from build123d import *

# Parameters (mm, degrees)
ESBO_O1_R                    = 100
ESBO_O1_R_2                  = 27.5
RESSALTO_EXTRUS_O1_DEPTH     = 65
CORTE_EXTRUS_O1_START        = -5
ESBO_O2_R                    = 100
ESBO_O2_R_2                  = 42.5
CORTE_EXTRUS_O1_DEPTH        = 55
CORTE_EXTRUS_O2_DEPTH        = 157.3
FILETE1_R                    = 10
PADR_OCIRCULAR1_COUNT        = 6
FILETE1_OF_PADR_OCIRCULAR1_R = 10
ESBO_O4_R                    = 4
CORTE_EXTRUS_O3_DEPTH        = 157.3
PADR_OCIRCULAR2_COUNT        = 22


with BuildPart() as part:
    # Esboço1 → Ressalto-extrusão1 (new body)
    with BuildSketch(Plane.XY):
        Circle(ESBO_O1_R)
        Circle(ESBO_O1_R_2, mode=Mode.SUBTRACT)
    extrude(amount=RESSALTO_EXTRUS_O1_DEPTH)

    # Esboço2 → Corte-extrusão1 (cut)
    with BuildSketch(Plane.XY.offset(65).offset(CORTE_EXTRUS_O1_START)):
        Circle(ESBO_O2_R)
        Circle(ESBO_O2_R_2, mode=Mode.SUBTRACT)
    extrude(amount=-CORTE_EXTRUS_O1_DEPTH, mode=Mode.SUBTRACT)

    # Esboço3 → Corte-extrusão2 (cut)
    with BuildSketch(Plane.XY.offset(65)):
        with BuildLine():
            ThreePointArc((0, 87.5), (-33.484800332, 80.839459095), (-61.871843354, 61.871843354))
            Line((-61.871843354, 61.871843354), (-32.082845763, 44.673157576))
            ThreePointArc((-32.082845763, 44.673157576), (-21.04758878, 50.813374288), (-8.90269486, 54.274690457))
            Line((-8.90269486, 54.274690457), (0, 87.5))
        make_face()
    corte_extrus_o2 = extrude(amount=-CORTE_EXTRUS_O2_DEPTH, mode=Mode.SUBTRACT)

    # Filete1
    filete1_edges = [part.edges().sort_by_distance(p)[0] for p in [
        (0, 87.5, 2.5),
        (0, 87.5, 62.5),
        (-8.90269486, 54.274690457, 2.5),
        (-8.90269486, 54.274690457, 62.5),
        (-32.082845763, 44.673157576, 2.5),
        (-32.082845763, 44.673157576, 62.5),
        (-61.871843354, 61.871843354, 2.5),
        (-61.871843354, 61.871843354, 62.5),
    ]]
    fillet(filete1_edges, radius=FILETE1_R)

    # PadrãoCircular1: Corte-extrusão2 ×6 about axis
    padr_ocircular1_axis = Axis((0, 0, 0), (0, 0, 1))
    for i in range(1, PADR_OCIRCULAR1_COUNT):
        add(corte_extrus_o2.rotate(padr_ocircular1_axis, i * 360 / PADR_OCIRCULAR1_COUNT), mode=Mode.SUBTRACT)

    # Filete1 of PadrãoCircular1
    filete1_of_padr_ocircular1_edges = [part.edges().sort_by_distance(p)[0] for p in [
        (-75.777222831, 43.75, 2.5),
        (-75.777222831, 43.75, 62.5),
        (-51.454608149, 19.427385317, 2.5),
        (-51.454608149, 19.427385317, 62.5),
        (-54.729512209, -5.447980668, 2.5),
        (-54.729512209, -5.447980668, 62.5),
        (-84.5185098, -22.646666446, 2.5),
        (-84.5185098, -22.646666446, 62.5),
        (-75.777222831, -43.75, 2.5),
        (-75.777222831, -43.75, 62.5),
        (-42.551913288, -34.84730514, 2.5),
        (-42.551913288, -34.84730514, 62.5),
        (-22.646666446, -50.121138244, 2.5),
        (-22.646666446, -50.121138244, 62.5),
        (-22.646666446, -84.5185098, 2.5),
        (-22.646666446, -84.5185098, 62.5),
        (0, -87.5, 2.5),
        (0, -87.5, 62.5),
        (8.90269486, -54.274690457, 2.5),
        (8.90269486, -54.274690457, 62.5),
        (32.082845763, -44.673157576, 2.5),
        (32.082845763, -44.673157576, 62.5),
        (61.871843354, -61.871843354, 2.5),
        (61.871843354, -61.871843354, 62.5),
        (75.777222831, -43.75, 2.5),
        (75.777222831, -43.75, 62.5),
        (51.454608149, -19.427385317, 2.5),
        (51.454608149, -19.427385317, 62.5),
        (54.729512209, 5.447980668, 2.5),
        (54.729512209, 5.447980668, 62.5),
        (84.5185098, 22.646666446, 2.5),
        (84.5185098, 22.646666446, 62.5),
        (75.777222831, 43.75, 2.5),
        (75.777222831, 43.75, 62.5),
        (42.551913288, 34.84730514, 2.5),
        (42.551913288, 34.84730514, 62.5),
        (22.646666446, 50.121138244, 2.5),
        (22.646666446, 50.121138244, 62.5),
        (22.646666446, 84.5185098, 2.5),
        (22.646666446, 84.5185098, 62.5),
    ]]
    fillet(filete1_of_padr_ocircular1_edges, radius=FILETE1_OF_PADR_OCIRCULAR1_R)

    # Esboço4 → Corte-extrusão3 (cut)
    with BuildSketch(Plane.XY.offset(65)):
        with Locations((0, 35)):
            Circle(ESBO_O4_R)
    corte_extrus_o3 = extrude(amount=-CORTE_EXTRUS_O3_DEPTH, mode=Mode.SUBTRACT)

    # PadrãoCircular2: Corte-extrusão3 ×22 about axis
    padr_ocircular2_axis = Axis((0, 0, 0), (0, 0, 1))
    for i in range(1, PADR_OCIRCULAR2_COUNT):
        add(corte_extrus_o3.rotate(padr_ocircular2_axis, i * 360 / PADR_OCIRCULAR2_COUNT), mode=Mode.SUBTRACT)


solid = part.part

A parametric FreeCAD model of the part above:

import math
import FreeCAD as App
import Part
import Sketcher

V = App.Vector
Q = App.Units.Quantity


def edges_at(feature, points):
    """Names of the edges that pass closest to the given points."""
    edges = feature.Shape.Edges
    near = lambda p: min(range(len(edges)), key=lambda i: edges[i].distToShape(Part.Vertex(*p))[0])
    return sorted({f"Edge{near(p) + 1}" for p in points})

doc = App.newDocument("Part")
body = doc.addObject("PartDesign::Body", "Body")

sketch1 = body.newObject("Sketcher::SketchObject", "Sketch")
sketch1.AttachmentSupport = (doc.getObject("XY_Plane"), [""])
sketch1.MapMode = "FlatFace"
sketch1.addGeometry(Part.Circle(V(0, 0, 0), V(0, 0, 1), 100), False)
sketch1.addGeometry(Part.Circle(V(0, 0, 0), V(0, 0, 1), 28), False)
sketch1.addConstraint(Sketcher.Constraint("Coincident", 0, 3, -1, 1))
sketch1.addConstraint(Sketcher.Constraint("Coincident", 1, 3, -1, 1))
sketch1.addConstraint(Sketcher.Constraint("Diameter", 0, 200.0))
sketch1.addConstraint(Sketcher.Constraint("Diameter", 1, 55.0))
pad1 = body.newObject("PartDesign::Pad", "Pad")
pad1.Profile = sketch1
pad1.Length = 65

sketch2 = body.newObject("Sketcher::SketchObject", "Sketch001")
sketch2.AttachmentSupport = (doc.getObject("XY_Plane"), [""])
sketch2.MapMode = "FlatFace"
sketch2.AttachmentOffset = App.Placement(V(0, 0, 60), App.Rotation())
sketch2.addGeometry(Part.Circle(V(0, 0, 0), V(0, 0, 1), 100), False)
sketch2.addGeometry(Part.Circle(V(0, 0, 0), V(0, 0, 1), 42), False)
sketch2.addConstraint(Sketcher.Constraint("Coincident", 0, 3, -1, 1))
sketch2.addConstraint(Sketcher.Constraint("Coincident", 1, 3, -1, 1))
sketch2.addConstraint(Sketcher.Constraint("Diameter", 0, 200.0))
sketch2.addConstraint(Sketcher.Constraint("Diameter", 1, 85.0))
pocket1 = body.newObject("PartDesign::Pocket", "Pocket")
pocket1.Profile = sketch2
pocket1.Length = 55

sketch3 = body.newObject("Sketcher::SketchObject", "Sketch002")
sketch3.AttachmentSupport = (doc.getObject("XY_Plane"), [""])
sketch3.MapMode = "FlatFace"
sketch3.AttachmentOffset = App.Placement(V(0, 0, 65), App.Rotation())
sketch3.addGeometry(Part.ArcOfCircle(Part.Circle(V(0, 0, 0), V(0, 0, 1), 87), math.radians(90), math.radians(135)), False)
sketch3.addGeometry(Part.LineSegment(V(-62, 62, 0), V(-32, 45, 0)), False)
sketch3.addGeometry(Part.ArcOfCircle(Part.Circle(V(0, 0, 0), V(0, 0, 1), 55), math.radians(99), math.radians(126)), False)
sketch3.addGeometry(Part.LineSegment(V(-9, 54, 0), V(0, 88, 0)), False)
sketch3.addConstraint(Sketcher.Constraint("Coincident", 0, 2, 1, 1))
sketch3.addConstraint(Sketcher.Constraint("Coincident", 1, 2, 2, 2))
sketch3.addConstraint(Sketcher.Constraint("Coincident", 2, 1, 3, 1))
sketch3.addConstraint(Sketcher.Constraint("Coincident", 3, 2, 0, 1))
sketch3.addConstraint(Sketcher.Constraint("Coincident", 0, 3, -1, 1))
sketch3.addConstraint(Sketcher.Constraint("Coincident", 2, 3, -1, 1))
sketch3.addConstraint(Sketcher.Constraint("PointOnObject", 3, 2, -2))
sketch3.addConstraint(Sketcher.Constraint("Equal", 1, 3))
sketch3.addConstraint(Sketcher.Constraint("Radius", 2, 55.0))
sketch3.addConstraint(Sketcher.Constraint("Radius", 0, 87.5))
sketch3.addConstraint(Sketcher.Constraint("Angle", 1, Q("-30 deg")))
sketch3.addConstraint(Sketcher.Constraint("Angle", 3, Q("75 deg")))
pocket2 = body.newObject("PartDesign::Pocket", "Pocket001")
pocket2.Profile = sketch3
pocket2.Length = 157.3
doc.recompute()

fillet = body.newObject("PartDesign::Fillet", "Fillet")
fillet.Base = (pocket2, edges_at(pocket2, [
    (0, 87.5, 2.5),
    (0, 87.5, 62.5),
    (-8.903, 54.275, 2.5),
    (-8.903, 54.275, 62.5),
    (-32.083, 44.673, 2.5),
    (-32.083, 44.673, 62.5),
    (-61.872, 61.872, 2.5),
    (-61.872, 61.872, 62.5),
]))
fillet.Radius = 10
doc.recompute()

polarpattern = body.newObject("PartDesign::PolarPattern", "PolarPattern")
polarpattern.Originals = [pocket2]
polarpattern.Axis = (doc.getObject("Z_Axis"), [""])
polarpattern.Angle = 360
polarpattern.Occurrences = 6
body.Tip = polarpattern
doc.recompute()

fillet2 = body.newObject("PartDesign::Fillet", "Fillet001")
fillet2.Base = (polarpattern, edges_at(polarpattern, [
    (-75.777, 43.75, 2.5),
    (-75.777, 43.75, 62.5),
    (-51.455, 19.427, 2.5),
    (-51.455, 19.427, 62.5),
    (-54.73, -5.448, 2.5),
    (-54.73, -5.448, 62.5),
    (-84.519, -22.647, 2.5),
    (-84.519, -22.647, 62.5),
    (-75.777, -43.75, 2.5),
    (-75.777, -43.75, 62.5),
    (-42.552, -34.847, 2.5),
    (-42.552, -34.847, 62.5),
    (-22.647, -50.121, 2.5),
    (-22.647, -50.121, 62.5),
    (-22.647, -84.519, 2.5),
    (-22.647, -84.519, 62.5),
    (0, -87.5, 2.5),
    (0, -87.5, 62.5),
    (8.903, -54.275, 2.5),
    (8.903, -54.275, 62.5),
    (32.083, -44.673, 2.5),
    (32.083, -44.673, 62.5),
    (61.872, -61.872, 2.5),
    (61.872, -61.872, 62.5),
    (75.777, -43.75, 2.5),
    (75.777, -43.75, 62.5),
    (51.455, -19.427, 2.5),
    (51.455, -19.427, 62.5),
    (54.73, 5.448, 2.5),
    (54.73, 5.448, 62.5),
    (84.519, 22.647, 2.5),
    (84.519, 22.647, 62.5),
    (75.777, 43.75, 2.5),
    (75.777, 43.75, 62.5),
    (42.552, 34.847, 2.5),
    (42.552, 34.847, 62.5),
    (22.647, 50.121, 2.5),
    (22.647, 50.121, 62.5),
    (22.647, 84.519, 2.5),
    (22.647, 84.519, 62.5),
]))
fillet2.Radius = 10

sketch4 = body.newObject("Sketcher::SketchObject", "Sketch003")
sketch4.AttachmentSupport = (doc.getObject("XY_Plane"), [""])
sketch4.MapMode = "FlatFace"
sketch4.AttachmentOffset = App.Placement(V(0, 0, 65), App.Rotation())
sketch4.addGeometry(Part.Circle(V(0, 35, 0), V(0, 0, 1), 4), False)
sketch4.addConstraint(Sketcher.Constraint("PointOnObject", 0, 3, -2))
sketch4.addConstraint(Sketcher.Constraint("Diameter", 0, 8.0))
sketch4.addConstraint(Sketcher.Constraint("DistanceY", -1, 1, 0, 3, 35.0))
pocket3 = body.newObject("PartDesign::Pocket", "Pocket002")
pocket3.Profile = sketch4
pocket3.Length = 157.3
doc.recompute()

polarpattern2 = body.newObject("PartDesign::PolarPattern", "PolarPattern001")
polarpattern2.Originals = [pocket3]
polarpattern2.Axis = (doc.getObject("Z_Axis"), [""])
polarpattern2.Angle = 360
polarpattern2.Occurrences = 22
body.Tip = polarpattern2

doc.recompute()
